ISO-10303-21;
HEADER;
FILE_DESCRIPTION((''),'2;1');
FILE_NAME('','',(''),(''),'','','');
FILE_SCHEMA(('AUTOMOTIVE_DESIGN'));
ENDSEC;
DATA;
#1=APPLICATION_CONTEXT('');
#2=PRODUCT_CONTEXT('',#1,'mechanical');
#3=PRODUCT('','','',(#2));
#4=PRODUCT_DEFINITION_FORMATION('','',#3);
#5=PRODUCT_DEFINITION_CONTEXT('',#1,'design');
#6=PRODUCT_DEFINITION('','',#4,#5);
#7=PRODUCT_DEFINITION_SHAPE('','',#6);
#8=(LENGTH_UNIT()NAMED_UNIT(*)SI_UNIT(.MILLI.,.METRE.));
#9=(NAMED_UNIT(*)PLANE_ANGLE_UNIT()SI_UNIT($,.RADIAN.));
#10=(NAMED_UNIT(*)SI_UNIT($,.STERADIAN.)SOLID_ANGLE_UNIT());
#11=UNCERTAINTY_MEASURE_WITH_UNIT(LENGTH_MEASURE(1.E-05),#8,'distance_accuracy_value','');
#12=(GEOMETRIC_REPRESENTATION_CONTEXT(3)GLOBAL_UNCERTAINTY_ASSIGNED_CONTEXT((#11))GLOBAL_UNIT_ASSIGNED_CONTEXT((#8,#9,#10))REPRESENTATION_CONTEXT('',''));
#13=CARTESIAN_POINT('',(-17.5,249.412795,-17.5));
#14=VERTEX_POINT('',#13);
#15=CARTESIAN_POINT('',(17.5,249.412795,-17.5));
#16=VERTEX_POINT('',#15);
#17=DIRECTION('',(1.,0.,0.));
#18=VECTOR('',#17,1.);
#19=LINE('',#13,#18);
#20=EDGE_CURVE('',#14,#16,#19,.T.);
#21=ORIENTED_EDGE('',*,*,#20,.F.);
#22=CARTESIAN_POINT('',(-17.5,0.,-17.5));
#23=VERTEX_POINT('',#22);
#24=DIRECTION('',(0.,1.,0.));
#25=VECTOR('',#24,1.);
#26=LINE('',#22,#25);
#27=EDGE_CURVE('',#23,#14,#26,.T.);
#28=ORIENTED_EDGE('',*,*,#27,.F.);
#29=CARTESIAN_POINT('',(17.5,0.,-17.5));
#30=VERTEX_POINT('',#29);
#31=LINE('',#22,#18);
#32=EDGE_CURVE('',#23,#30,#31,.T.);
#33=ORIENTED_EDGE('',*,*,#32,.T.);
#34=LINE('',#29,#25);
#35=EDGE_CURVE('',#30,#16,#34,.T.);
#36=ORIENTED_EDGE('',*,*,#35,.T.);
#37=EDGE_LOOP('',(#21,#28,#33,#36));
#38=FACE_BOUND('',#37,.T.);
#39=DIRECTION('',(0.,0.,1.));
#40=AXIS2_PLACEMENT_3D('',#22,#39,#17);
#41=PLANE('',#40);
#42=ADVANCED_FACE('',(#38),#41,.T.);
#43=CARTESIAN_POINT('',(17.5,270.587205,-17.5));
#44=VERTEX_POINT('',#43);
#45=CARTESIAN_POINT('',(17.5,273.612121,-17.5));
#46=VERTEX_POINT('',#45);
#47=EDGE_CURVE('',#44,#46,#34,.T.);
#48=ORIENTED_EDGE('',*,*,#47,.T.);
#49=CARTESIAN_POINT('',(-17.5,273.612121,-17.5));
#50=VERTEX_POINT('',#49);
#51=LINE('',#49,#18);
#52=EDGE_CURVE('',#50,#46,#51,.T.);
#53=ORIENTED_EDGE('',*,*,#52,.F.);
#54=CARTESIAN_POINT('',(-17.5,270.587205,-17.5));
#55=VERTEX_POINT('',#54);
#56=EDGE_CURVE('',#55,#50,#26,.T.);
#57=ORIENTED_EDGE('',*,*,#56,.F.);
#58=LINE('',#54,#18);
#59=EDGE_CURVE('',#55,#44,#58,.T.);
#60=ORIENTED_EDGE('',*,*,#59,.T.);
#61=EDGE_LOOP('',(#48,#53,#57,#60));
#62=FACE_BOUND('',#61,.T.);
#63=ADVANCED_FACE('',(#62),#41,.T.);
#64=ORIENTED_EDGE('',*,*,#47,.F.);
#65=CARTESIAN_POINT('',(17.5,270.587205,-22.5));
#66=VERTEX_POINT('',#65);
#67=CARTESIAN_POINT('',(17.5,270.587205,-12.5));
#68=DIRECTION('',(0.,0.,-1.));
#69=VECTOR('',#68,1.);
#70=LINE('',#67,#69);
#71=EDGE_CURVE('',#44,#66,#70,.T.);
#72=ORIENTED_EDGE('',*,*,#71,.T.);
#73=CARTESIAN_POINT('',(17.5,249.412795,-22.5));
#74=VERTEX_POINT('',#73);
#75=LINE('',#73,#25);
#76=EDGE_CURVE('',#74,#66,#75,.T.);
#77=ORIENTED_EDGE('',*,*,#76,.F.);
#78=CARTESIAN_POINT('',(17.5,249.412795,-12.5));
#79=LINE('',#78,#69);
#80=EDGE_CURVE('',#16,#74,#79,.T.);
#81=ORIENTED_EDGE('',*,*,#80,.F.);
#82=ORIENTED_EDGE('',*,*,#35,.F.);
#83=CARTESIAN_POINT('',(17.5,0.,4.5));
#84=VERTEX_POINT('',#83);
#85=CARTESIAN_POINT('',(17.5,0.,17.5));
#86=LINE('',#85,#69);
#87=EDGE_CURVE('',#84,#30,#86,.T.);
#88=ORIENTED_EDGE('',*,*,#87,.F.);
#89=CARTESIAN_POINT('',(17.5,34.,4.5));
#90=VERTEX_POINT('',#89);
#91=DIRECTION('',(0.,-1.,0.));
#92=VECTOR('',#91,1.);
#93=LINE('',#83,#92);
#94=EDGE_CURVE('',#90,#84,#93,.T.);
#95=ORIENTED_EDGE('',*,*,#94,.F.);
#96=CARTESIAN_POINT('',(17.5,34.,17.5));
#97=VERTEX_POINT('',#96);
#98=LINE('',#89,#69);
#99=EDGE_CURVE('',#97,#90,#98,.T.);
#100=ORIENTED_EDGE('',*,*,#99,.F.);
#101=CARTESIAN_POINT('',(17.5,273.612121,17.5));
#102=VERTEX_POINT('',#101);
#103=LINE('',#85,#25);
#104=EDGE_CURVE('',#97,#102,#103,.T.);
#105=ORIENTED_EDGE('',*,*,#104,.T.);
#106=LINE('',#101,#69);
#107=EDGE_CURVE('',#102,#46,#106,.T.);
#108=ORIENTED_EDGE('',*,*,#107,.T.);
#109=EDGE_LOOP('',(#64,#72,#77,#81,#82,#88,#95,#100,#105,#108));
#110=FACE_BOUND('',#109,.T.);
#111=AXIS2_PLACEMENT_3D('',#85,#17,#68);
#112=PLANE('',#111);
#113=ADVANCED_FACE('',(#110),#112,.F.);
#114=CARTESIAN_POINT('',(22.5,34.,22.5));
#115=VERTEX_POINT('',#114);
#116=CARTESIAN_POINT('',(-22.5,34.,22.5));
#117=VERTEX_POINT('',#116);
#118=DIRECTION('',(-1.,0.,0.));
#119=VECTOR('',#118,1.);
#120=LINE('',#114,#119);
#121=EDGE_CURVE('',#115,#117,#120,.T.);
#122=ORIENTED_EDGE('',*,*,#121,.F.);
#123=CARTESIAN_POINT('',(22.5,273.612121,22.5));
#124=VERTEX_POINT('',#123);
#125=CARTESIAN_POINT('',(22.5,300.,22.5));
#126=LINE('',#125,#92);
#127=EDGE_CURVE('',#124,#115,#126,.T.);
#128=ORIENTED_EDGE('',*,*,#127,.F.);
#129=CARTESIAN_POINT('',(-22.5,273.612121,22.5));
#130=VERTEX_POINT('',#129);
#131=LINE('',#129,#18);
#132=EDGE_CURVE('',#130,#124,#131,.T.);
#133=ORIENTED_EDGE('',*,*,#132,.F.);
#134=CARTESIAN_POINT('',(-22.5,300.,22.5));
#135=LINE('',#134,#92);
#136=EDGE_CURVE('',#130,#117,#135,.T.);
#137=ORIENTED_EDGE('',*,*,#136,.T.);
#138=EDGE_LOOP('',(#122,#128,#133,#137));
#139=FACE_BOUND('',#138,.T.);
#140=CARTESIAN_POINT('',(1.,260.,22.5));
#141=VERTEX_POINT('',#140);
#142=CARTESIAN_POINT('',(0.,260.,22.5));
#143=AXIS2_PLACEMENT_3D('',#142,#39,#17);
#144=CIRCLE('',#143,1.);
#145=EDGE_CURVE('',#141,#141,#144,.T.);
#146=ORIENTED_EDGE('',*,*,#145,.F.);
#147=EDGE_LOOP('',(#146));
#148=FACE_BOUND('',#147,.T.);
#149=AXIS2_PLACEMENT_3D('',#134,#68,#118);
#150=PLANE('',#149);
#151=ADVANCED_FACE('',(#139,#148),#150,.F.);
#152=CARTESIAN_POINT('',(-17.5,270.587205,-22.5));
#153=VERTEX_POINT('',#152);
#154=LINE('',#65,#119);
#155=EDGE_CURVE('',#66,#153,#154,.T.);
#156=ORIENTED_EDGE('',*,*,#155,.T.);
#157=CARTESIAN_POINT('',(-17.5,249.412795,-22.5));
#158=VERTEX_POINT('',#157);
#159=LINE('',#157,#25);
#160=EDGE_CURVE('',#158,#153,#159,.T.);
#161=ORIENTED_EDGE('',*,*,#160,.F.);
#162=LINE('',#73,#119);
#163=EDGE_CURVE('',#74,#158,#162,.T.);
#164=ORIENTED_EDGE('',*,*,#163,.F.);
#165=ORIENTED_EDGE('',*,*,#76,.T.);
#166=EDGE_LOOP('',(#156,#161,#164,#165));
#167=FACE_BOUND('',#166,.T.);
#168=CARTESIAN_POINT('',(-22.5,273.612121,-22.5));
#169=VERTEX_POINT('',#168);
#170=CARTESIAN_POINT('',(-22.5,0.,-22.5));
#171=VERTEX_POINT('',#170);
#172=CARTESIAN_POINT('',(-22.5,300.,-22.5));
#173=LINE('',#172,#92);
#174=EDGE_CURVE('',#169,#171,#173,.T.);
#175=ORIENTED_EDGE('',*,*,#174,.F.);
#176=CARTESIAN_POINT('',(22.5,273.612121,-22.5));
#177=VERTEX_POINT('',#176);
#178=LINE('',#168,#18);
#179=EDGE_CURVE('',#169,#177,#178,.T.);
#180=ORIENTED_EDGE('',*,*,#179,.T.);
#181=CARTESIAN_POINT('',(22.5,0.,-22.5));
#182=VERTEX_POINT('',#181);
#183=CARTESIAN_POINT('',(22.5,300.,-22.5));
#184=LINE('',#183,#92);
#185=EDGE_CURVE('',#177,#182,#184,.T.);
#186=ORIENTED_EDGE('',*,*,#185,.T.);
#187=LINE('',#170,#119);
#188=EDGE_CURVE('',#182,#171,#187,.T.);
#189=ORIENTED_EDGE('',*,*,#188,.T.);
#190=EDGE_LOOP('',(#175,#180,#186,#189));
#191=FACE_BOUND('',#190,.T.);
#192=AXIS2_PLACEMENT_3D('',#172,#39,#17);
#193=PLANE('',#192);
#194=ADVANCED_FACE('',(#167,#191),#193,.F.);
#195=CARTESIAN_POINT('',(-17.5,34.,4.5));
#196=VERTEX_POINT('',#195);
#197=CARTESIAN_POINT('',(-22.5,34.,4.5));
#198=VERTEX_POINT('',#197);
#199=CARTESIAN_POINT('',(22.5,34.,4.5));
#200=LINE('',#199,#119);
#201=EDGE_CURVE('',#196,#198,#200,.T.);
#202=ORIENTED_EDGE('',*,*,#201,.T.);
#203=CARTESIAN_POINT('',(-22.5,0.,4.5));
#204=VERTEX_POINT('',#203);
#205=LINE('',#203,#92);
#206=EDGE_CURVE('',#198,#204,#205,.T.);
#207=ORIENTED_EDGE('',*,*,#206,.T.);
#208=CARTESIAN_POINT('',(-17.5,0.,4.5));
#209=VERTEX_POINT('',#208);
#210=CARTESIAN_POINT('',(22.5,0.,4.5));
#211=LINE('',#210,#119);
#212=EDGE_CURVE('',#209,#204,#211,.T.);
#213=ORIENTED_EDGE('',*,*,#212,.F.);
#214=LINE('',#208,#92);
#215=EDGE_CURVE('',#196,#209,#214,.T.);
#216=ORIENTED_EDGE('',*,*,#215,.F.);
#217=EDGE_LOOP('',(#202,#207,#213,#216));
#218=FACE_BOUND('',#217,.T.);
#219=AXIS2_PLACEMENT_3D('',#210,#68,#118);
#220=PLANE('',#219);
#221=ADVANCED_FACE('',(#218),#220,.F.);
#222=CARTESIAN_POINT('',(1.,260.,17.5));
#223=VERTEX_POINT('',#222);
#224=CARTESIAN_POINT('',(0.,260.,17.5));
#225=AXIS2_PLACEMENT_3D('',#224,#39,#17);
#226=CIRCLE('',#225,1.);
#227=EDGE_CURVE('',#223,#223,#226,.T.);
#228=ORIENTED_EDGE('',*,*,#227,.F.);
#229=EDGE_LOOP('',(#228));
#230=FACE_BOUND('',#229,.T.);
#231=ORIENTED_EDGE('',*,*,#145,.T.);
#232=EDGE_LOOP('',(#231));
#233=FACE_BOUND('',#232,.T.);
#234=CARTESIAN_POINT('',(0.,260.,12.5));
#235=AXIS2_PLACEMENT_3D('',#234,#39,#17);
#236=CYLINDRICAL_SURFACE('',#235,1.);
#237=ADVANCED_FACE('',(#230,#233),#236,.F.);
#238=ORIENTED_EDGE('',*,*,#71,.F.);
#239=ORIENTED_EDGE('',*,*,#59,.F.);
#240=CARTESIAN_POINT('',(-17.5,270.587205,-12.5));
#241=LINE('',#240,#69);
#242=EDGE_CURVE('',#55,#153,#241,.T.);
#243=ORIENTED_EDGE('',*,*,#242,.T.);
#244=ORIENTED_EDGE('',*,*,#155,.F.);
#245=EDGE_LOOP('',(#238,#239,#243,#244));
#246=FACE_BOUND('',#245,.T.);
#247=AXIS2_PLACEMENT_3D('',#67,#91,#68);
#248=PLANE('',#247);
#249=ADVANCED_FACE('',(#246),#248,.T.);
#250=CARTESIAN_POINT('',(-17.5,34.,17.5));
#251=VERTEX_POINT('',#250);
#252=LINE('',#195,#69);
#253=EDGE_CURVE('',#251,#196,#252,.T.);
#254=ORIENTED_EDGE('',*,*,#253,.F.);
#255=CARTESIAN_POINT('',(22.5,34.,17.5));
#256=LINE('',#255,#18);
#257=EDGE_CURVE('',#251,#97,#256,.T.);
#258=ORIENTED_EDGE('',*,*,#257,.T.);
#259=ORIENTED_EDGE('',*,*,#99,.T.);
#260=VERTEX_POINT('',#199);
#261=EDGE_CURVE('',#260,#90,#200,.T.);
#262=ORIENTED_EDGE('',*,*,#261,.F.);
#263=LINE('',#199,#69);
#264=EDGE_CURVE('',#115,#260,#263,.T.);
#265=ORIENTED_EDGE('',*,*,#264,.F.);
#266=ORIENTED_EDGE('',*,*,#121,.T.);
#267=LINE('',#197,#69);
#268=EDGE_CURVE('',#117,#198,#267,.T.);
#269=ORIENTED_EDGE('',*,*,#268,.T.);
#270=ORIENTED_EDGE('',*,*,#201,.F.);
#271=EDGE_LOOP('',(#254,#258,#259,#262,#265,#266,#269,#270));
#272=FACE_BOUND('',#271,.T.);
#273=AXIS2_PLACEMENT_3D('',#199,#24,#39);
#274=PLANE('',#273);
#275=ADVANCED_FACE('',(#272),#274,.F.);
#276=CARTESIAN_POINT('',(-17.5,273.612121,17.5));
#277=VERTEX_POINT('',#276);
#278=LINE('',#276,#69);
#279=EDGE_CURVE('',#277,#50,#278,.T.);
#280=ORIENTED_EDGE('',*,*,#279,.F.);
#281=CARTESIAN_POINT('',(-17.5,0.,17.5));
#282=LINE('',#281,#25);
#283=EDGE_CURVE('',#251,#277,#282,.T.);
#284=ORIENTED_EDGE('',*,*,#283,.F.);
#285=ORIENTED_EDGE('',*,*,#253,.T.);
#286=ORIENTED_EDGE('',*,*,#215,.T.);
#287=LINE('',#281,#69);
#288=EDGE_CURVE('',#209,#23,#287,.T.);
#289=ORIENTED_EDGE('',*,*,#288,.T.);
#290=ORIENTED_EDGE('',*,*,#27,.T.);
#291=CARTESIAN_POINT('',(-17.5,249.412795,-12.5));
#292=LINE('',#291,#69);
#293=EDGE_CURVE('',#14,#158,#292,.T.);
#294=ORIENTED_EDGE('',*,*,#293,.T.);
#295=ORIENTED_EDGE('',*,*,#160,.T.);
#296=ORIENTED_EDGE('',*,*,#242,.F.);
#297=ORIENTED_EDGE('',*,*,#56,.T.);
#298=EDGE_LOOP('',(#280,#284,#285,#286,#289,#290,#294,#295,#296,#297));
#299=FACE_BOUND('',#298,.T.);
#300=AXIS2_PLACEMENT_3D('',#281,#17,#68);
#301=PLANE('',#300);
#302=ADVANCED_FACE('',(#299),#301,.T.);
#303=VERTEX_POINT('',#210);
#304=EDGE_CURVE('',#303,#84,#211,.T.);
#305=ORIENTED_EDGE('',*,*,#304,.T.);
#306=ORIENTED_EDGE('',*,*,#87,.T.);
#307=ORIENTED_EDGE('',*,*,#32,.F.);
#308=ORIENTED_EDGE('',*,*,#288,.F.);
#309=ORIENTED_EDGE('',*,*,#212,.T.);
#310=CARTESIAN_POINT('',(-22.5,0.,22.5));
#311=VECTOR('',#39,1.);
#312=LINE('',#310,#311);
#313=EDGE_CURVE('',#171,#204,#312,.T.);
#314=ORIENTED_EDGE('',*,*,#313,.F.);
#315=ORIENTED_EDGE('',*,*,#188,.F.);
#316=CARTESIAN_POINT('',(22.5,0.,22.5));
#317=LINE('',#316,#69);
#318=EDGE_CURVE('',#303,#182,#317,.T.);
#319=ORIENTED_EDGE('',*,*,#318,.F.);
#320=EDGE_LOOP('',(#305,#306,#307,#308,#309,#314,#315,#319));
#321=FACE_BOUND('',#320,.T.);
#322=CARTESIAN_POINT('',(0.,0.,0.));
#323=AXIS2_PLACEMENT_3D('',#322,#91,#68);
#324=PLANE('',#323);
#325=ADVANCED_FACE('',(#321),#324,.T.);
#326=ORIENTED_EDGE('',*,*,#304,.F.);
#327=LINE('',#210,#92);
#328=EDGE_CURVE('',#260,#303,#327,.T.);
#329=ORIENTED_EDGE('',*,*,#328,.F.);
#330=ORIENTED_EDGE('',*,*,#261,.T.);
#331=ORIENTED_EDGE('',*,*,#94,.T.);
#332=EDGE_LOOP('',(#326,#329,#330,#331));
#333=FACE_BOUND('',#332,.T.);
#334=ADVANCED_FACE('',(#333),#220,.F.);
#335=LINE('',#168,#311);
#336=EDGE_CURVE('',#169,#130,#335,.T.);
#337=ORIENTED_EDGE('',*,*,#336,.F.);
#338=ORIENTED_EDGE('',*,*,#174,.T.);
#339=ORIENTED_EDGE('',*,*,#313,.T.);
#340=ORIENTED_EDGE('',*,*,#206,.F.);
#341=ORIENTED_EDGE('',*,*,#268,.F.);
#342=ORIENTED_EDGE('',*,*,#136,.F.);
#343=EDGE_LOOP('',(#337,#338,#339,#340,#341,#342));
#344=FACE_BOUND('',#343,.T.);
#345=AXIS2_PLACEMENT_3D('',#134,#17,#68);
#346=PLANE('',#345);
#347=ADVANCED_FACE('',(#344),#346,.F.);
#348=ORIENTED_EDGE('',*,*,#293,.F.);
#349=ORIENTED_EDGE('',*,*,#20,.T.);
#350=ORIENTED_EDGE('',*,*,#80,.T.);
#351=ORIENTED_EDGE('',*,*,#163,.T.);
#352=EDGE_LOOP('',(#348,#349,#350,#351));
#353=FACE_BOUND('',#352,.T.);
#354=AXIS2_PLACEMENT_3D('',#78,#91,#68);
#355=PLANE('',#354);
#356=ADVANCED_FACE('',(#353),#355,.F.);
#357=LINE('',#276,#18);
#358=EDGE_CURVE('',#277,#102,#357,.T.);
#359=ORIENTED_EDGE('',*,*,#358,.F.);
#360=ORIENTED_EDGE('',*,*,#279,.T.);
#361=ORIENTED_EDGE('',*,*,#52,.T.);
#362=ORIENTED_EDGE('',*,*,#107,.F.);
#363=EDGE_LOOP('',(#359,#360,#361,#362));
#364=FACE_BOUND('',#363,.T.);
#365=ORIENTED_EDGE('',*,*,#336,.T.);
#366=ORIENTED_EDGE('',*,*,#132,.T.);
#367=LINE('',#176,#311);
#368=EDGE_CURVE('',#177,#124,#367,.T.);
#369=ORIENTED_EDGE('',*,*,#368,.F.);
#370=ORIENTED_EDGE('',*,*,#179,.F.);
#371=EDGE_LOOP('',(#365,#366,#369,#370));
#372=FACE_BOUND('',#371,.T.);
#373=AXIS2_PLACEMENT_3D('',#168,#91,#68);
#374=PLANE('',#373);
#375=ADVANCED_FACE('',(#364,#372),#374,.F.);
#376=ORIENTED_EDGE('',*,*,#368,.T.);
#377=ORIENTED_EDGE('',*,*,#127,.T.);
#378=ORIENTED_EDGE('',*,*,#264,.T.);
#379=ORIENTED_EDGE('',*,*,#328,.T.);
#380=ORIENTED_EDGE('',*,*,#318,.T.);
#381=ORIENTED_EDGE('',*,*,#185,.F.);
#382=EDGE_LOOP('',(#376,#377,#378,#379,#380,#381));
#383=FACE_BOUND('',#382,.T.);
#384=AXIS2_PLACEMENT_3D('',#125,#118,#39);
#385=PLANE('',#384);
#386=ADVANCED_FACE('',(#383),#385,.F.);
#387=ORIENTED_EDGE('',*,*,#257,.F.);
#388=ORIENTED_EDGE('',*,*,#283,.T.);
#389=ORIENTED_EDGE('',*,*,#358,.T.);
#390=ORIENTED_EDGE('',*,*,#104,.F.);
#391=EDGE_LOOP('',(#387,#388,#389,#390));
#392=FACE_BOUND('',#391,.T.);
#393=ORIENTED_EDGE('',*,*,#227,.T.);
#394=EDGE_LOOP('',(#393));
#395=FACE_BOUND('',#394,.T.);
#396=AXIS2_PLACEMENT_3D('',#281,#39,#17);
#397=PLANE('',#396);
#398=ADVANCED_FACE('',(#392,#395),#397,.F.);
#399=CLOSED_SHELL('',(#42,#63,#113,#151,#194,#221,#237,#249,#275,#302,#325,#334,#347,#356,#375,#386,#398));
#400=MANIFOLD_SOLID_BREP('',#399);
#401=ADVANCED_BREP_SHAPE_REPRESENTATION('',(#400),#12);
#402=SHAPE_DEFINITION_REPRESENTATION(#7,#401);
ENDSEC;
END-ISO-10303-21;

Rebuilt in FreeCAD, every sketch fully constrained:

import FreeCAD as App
import Part
import Sketcher

V = App.Vector
Q = App.Units.Quantity

doc = App.newDocument("Part")
body = doc.addObject("PartDesign::Body", "Body")

# Sketch on XZ plane
sketch1 = body.newObject("Sketcher::SketchObject", "Sketch")
sketch1.AttachmentSupport = (doc.getObject("XZ_Plane"), [""])
sketch1.MapMode = "FlatFace"
sketch1.addGeometry([
    Part.LineSegment(V(-22, -22, 0), V(-22, 22, 0)),
    Part.LineSegment(V(-22, 22, 0), V(22, 22, 0)),
    Part.LineSegment(V(22, 22, 0), V(22, -22, 0)),
    Part.LineSegment(V(22, -22, 0), V(-22, -22, 0)),
], False)
sketch1.addConstraint([
    Sketcher.Constraint("Coincident", 0, 2, 1, 1),
    Sketcher.Constraint("Coincident", 1, 2, 2, 1),
    Sketcher.Constraint("Coincident", 2, 2, 3, 1),
    Sketcher.Constraint("Coincident", 3, 2, 0, 1),
    Sketcher.Constraint("Vertical", 0),
    Sketcher.Constraint("Horizontal", 1),
    Sketcher.Constraint("Vertical", 2),
    Sketcher.Constraint("Horizontal", 3),
    Sketcher.Constraint("Symmetric", 0, 2, 2, 2, -1, 1),
    Sketcher.Constraint("Equal", 3, 0),
    Sketcher.Constraint("DistanceX", 1, 1, 1, 2, Q("45 mm")),
])
pad1 = body.newObject("PartDesign::Pad", "Pad")
pad1.Profile = sketch1
pad1.Length = 300
pad1.Reversed = True

# Sketch on YZ plane
sketch2 = body.newObject("Sketcher::SketchObject", "Sketch001")
sketch2.AttachmentSupport = (doc.getObject("YZ_Plane"), [""])
sketch2.MapMode = "FlatFace"
sketch2.AttachmentOffset = App.Placement(V(0, 0, -22.5), App.Rotation())
sketch2.addGeometry([
    Part.LineSegment(V(34, 4, 0), V(0, 4, 0)),
    Part.LineSegment(V(0, 4, 0), V(0, 22, 0)),
    Part.LineSegment(V(0, 22, 0), V(34, 22, 0)),
    Part.LineSegment(V(34, 22, 0), V(34, 4, 0)),
], False)
sketch2.addConstraint([
    Sketcher.Constraint("Coincident", 0, 2, 1, 1),
    Sketcher.Constraint("Coincident", 1, 2, 2, 1),
    Sketcher.Constraint("Coincident", 2, 2, 3, 1),
    Sketcher.Constraint("Coincident", 3, 2, 0, 1),
    Sketcher.Constraint("Horizontal", 0),
    Sketcher.Constraint("Vertical", 1),
    Sketcher.Constraint("Horizontal", 2),
    Sketcher.Constraint("Vertical", 3),
    Sketcher.Constraint("PointOnObject", 0, 2, -2),
    Sketcher.Constraint("DistanceX", 0, 2, 0, 1, Q("34 mm")),
    Sketcher.Constraint("DistanceY", 1, 1, 1, 2, Q("18 mm")),
    Sketcher.Constraint("DistanceY", -1, 1, 0, 2, Q("4.5 mm")),
])
pocket1 = body.newObject("PartDesign::Pocket", "Pocket")
pocket1.Profile = sketch2
pocket1.Type = "ThroughAll"
pocket1.Reversed = True

# Sketch on XZ plane
sketch3 = body.newObject("Sketcher::SketchObject", "Sketch002")
sketch3.AttachmentSupport = (doc.getObject("XZ_Plane"), [""])
sketch3.MapMode = "FlatFace"
sketch3.AttachmentOffset = App.Placement(V(0, 0, -300), App.Rotation())
sketch3.addGeometry([
    Part.LineSegment(V(-18, -18, 0), V(-18, 18, 0)),
    Part.LineSegment(V(-18, 18, 0), V(18, 18, 0)),
    Part.LineSegment(V(18, 18, 0), V(18, -18, 0)),
    Part.LineSegment(V(18, -18, 0), V(-18, -18, 0)),
], False)
sketch3.addConstraint([
    Sketcher.Constraint("Coincident", 0, 2, 1, 1),
    Sketcher.Constraint("Coincident", 1, 2, 2, 1),
    Sketcher.Constraint("Coincident", 2, 2, 3, 1),
    Sketcher.Constraint("Coincident", 3, 2, 0, 1),
    Sketcher.Constraint("Vertical", 0),
    Sketcher.Constraint("Horizontal", 1),
    Sketcher.Constraint("Vertical", 2),
    Sketcher.Constraint("Horizontal", 3),
    Sketcher.Constraint("Symmetric", 0, 2, 2, 2, -1, 1),
    Sketcher.Constraint("Equal", 3, 0),
    Sketcher.Constraint("DistanceX", 1, 1, 1, 2, Q("35 mm")),
])
pocket2 = body.newObject("PartDesign::Pocket", "Pocket001")
pocket2.Profile = sketch3
pocket2.Type = "ThroughAll"
pocket2.Reversed = True

# Sketch on XY plane
sketch4 = body.newObject("Sketcher::SketchObject", "Sketch003")
sketch4.AttachmentSupport = (doc.getObject("XY_Plane"), [""])
sketch4.MapMode = "FlatFace"
sketch4.AttachmentOffset = App.Placement(V(0, 0, -22.5), App.Rotation())
sketch4.addGeometry([
    Part.LineSegment(V(18, 271, 0), V(18, 249, 0)),
    Part.LineSegment(V(18, 249, 0), V(-18, 249, 0)),
    Part.LineSegment(V(-18, 249, 0), V(-18, 271, 0)),
    Part.LineSegment(V(-18, 271, 0), V(18, 271, 0)),
], False)
sketch4.addConstraint([
    Sketcher.Constraint("Coincident", 0, 2, 1, 1),
    Sketcher.Constraint("Coincident", 1, 2, 2, 1),
    Sketcher.Constraint("Coincident", 2, 2, 3, 1),
    Sketcher.Constraint("Coincident", 3, 2, 0, 1),
    Sketcher.Constraint("Vertical", 0),
    Sketcher.Constraint("Horizontal", 1),
    Sketcher.Constraint("Vertical", 2),
    Sketcher.Constraint("Horizontal", 3),
    Sketcher.Constraint("DistanceX", 1, 2, 1, 1, Q("35 mm")),
    Sketcher.Constraint("DistanceX", -1, 1, 0, 2, Q("17.5 mm")),
    Sketcher.Constraint("DistanceY", 0, 2, 0, 1, Q("21.17441 mm")),
    Sketcher.Constraint("DistanceY", -1, 1, 0, 2, Q("249.412795 mm")),
])
pocket3 = body.newObject("PartDesign::Pocket", "Pocket002")
pocket3.Profile = sketch4
pocket3.Length = 10
pocket3.Reversed = True

# Sketch on XY plane
sketch5 = body.newObject("Sketcher::SketchObject", "Sketch004")
sketch5.AttachmentSupport = (doc.getObject("XY_Plane"), [""])
sketch5.MapMode = "FlatFace"
sketch5.AttachmentOffset = App.Placement(V(0, 0, 22.5), App.Rotation())
sketch5.addGeometry(Part.Circle(V(0, 260, 0), V(0, 0, 1), 1), False)
sketch5.addConstraint([
    Sketcher.Constraint("PointOnObject", 0, 3, -2),
    Sketcher.Constraint("Diameter", 0, Q("2 mm")),
    Sketcher.Constraint("DistanceY", -1, 1, 0, 3, Q("260 mm")),
])
pocket4 = body.newObject("PartDesign::Pocket", "Pocket003")
pocket4.Profile = sketch5
pocket4.Length = 10

# Sketch on XY plane
sketch6 = body.newObject("Sketcher::SketchObject", "Sketch005")
sketch6.AttachmentSupport = (doc.getObject("XY_Plane"), [""])
sketch6.MapMode = "FlatFace"
sketch6.AttachmentOffset = App.Placement(V(0, 0, 22.5), App.Rotation())
sketch6.addGeometry([
    Part.LineSegment(V(-22, 300, 0), V(-22, 274, 0)),
    Part.LineSegment(V(-22, 274, 0), V(22, 274, 0)),
    Part.LineSegment(V(22, 274, 0), V(22, 300, 0)),
    Part.LineSegment(V(22, 300, 0), V(-22, 300, 0)),
], False)
sketch6.addConstraint([
    Sketcher.Constraint("Coincident", 0, 2, 1, 1),
    Sketcher.Constraint("Coincident", 1, 2, 2, 1),
    Sketcher.Constraint("Coincident", 2, 2, 3, 1),
    Sketcher.Constraint("Coincident", 3, 2, 0, 1),
    Sketcher.Constraint("Vertical", 0),
    Sketcher.Constraint("Horizontal", 1),
    Sketcher.Constraint("Vertical", 2),
    Sketcher.Constraint("Horizontal", 3),
    Sketcher.Constraint("DistanceX", 1, 1, 1, 2, Q("45 mm")),
    Sketcher.Constraint("DistanceY", -1, 1, 2, 2, Q("300 mm")),
    Sketcher.Constraint("DistanceX", 0, 2, -1, 1, Q("22.5 mm")),
    Sketcher.Constraint("DistanceY", 0, 2, 0, 1, Q("26.387879 mm")),
])
pocket5 = body.newObject("PartDesign::Pocket", "Pocket004")
pocket5.Profile = sketch6
pocket5.Type = "ThroughAll"

doc.recompute()
